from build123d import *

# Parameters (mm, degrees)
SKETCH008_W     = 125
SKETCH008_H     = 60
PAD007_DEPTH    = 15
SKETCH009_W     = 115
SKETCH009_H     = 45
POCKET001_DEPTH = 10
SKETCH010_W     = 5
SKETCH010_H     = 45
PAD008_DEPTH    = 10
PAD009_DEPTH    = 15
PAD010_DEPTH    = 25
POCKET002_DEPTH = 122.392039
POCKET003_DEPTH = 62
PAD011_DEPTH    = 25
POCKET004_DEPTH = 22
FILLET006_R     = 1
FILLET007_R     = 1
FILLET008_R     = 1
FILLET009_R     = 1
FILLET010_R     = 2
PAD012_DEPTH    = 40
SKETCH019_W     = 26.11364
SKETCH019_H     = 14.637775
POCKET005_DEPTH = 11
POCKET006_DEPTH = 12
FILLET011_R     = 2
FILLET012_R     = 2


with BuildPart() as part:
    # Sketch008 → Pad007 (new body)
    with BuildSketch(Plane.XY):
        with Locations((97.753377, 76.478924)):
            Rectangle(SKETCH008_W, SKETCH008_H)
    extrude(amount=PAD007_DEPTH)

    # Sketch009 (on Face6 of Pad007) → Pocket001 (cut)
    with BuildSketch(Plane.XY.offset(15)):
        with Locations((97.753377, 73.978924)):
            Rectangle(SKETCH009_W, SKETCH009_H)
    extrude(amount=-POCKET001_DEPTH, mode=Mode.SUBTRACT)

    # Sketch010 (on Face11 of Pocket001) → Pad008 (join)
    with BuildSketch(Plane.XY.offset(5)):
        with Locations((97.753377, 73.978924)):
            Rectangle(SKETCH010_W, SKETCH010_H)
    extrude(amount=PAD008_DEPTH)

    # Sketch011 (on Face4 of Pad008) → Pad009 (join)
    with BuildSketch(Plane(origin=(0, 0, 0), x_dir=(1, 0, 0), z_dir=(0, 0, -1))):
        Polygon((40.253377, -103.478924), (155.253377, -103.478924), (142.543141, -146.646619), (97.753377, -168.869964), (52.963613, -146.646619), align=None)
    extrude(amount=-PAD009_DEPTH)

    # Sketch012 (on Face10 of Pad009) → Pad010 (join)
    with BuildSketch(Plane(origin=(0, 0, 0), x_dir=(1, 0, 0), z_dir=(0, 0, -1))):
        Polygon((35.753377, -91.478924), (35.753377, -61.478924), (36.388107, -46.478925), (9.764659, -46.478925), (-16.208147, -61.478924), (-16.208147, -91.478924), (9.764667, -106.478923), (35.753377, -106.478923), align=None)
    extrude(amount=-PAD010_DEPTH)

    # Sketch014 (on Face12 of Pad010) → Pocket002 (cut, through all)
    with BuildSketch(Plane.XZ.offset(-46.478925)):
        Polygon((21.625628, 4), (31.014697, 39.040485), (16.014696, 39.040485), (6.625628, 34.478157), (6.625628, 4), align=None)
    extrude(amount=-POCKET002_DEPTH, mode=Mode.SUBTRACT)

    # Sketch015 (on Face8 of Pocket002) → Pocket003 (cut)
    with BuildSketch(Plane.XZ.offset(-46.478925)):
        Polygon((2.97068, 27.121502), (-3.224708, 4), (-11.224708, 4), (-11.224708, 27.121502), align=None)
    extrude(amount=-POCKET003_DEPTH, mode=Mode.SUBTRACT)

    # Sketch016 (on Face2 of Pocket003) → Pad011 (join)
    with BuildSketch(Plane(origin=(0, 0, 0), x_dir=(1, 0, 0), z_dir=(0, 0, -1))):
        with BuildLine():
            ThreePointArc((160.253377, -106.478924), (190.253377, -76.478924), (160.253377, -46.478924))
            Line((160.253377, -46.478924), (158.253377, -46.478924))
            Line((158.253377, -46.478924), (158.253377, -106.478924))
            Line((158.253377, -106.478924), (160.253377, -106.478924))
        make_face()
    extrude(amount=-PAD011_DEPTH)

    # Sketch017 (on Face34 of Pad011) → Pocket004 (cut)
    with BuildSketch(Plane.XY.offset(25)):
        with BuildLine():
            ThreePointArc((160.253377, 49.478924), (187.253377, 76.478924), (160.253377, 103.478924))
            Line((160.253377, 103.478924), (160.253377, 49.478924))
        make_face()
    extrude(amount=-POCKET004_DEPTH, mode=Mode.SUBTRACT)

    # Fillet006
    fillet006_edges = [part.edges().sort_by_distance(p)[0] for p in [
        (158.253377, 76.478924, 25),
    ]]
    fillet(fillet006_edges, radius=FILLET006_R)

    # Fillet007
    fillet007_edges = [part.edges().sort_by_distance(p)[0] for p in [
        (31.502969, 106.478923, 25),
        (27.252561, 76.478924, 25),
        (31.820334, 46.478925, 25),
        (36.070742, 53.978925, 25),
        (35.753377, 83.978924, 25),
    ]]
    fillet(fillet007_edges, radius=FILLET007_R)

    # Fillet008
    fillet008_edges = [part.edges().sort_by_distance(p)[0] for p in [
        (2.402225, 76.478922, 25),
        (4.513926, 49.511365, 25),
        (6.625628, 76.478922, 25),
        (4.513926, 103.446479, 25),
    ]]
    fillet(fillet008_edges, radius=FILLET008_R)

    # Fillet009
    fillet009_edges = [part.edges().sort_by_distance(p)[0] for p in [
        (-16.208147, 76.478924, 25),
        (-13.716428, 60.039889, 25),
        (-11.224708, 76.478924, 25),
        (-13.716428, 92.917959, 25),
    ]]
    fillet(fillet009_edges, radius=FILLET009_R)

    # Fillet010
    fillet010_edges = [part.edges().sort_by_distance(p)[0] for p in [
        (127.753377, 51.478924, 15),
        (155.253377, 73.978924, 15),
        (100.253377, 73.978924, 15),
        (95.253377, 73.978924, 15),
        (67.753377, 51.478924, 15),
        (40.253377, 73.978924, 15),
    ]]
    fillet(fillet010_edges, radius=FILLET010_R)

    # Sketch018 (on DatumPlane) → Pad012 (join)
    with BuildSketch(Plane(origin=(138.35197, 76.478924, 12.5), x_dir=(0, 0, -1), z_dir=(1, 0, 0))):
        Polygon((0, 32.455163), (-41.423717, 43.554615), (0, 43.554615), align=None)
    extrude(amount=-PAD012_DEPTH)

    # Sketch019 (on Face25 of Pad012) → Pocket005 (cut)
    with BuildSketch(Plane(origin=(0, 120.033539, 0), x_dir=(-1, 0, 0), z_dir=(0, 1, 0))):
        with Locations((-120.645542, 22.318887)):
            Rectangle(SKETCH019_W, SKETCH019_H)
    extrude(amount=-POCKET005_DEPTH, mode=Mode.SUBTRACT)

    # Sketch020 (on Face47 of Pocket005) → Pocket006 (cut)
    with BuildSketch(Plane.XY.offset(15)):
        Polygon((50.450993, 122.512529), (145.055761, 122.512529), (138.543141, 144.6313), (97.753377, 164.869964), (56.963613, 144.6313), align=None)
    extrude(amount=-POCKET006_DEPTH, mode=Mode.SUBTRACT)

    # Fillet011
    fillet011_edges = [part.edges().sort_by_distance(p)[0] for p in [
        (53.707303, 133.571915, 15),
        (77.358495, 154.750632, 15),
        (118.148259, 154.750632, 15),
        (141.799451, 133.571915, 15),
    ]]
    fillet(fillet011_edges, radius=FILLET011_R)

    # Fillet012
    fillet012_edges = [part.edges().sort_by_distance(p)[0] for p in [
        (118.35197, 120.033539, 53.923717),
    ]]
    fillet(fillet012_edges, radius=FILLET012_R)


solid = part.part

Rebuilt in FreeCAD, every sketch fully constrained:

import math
import FreeCAD as App
import Part
import Sketcher
Q = App.Units.Quantity


def edges_at(feature, points):
    """Names of the edges that pass closest to the given points."""
    edges = feature.Shape.Edges
    near = lambda p: min(range(len(edges)), key=lambda i: edges[i].distToShape(Part.Vertex(*p))[0])
    return sorted({f"Edge{near(p) + 1}" for p in points})


def add_polygon(sketch, points):
    """Adds a closed chain of lines whose ends are joined by coincident constraints."""
    first, n = sketch.GeometryCount, len(points)
    for a, b in zip(points, points[1:] + points[:1]):
        sketch.addGeometry(Part.LineSegment(App.Vector(*a, 0), App.Vector(*b, 0)), False)
    for i in range(n):
        sketch.addConstraint(Sketcher.Constraint("Coincident", first + i, 2, first + (i + 1) % n, 1))

doc = App.newDocument("Part")
body = doc.addObject("PartDesign::Body", "Body")

# Sketch on XY plane
sketch1 = doc.addObject("Sketcher::SketchObject", "Sketch")
body.addObject(sketch1)
sketch1.AttachmentSupport = (doc.XY_Plane, [""])
sketch1.MapMode = "FlatFace"
add_polygon(sketch1, [(35, 106), (35, 46), (160, 46), (160, 106)])  # lines 0-3
sketch1.addConstraint([
    Sketcher.Constraint("Vertical", 0),
    Sketcher.Constraint("Horizontal", 1),
    Sketcher.Constraint("Vertical", 2),
    Sketcher.Constraint("Horizontal", 3),
    Sketcher.Constraint("DistanceX", 1, 1, 1, 2, 125.0),
    Sketcher.Constraint("DistanceY", 0, 2, 0, 1, 60.0),
    Sketcher.Constraint("DistanceX", -1, 1, 0, 2, 35.253377),
    Sketcher.Constraint("DistanceY", -1, 1, 0, 2, 46.478924),
])
pad1 = doc.addObject("PartDesign::Pad", "Pad")
body.addObject(pad1)
pad1.Profile = sketch1
pad1.Length = 15

# Sketch on XY plane
sketch2 = doc.addObject("Sketcher::SketchObject", "Sketch001")
body.addObject(sketch2)
sketch2.AttachmentSupport = (doc.XY_Plane, [""])
sketch2.MapMode = "FlatFace"
sketch2.AttachmentOffset = App.Placement(App.Vector(0, 0, 15), App.Rotation())
add_polygon(sketch2, [(40, 96), (40, 51), (155, 51), (155, 96)])  # lines 0-3
sketch2.addConstraint([
    Sketcher.Constraint("Vertical", 0),
    Sketcher.Constraint("Horizontal", 1),
    Sketcher.Constraint("Vertical", 2),
    Sketcher.Constraint("Horizontal", 3),
    Sketcher.Constraint("DistanceX", 1, 1, 1, 2, 115.0),
    Sketcher.Constraint("DistanceY", 0, 2, 0, 1, 45.0),
    Sketcher.Constraint("DistanceX", -1, 1, 0, 2, 40.253377),
    Sketcher.Constraint("DistanceY", -1, 1, 0, 2, 51.478924),
])
pocket1 = doc.addObject("PartDesign::Pocket", "Pocket")
body.addObject(pocket1)
pocket1.Profile = sketch2
pocket1.Length = 10

# Sketch on XY plane
sketch3 = doc.addObject("Sketcher::SketchObject", "Sketch002")
body.addObject(sketch3)
sketch3.AttachmentSupport = (doc.XY_Plane, [""])
sketch3.MapMode = "FlatFace"
sketch3.AttachmentOffset = App.Placement(App.Vector(0, 0, 5), App.Rotation())
add_polygon(sketch3, [(95, 96), (95, 51), (100, 51), (100, 96)])  # lines 0-3
sketch3.addConstraint([
    Sketcher.Constraint("Vertical", 0),
    Sketcher.Constraint("Horizontal", 1),
    Sketcher.Constraint("Vertical", 2),
    Sketcher.Constraint("Horizontal", 3),
    Sketcher.Constraint("DistanceX", 1, 1, 1, 2, 5.0),
    Sketcher.Constraint("DistanceY", 0, 2, 0, 1, 45.0),
    Sketcher.Constraint("DistanceX", -1, 1, 0, 2, 95.253377),
    Sketcher.Constraint("DistanceY", -1, 1, 0, 2, 51.478924),
])
pad2 = doc.addObject("PartDesign::Pad", "Pad001")
body.addObject(pad2)
pad2.Profile = sketch3
pad2.Length = 10

# Sketch on XY plane
sketch4 = doc.addObject("Sketcher::SketchObject", "Sketch003")
body.addObject(sketch4)
sketch4.AttachmentSupport = (doc.XY_Plane, [""])
sketch4.MapMode = "FlatFace"
add_polygon(sketch4, [(155, 103), (40, 103), (53, 147), (98, 169), (143, 147)])  # lines 0-4
sketch4.addConstraint([
    Sketcher.Constraint("Horizontal", 0),
    Sketcher.Constraint("Horizontal", 1, 2, 3, 2),
    Sketcher.Constraint("Equal", 2, 3),
    Sketcher.Constraint("Equal", 1, 4),
    Sketcher.Constraint("DistanceX", 0, 2, 0, 1, 115.0),
    Sketcher.Constraint("Distance", 1, 45.0),
    Sketcher.Constraint("Distance", 2, 50.0),
    Sketcher.Constraint("DistanceY", -1, 1, 1, 2, 146.646619),
    Sketcher.Constraint("DistanceX", -1, 1, 3, 2, 142.543141),
    Sketcher.Constraint("DistanceY", 0, 2, 2, 2, 65.39104),
])
pad3 = doc.addObject("PartDesign::Pad", "Pad002")
body.addObject(pad3)
pad3.Profile = sketch4
pad3.Length = 15

# Sketch on XY plane
sketch5 = doc.addObject("Sketcher::SketchObject", "Sketch004")
body.addObject(sketch5)
sketch5.AttachmentSupport = (doc.XY_Plane, [""])
sketch5.MapMode = "FlatFace"
add_polygon(sketch5, [(36, 61), (36, 46), (10, 46), (-16, 61), (-16, 91), (10, 106), (36, 106)])  # lines 0-6
sketch5.addConstraint([
    Sketcher.Constraint("Horizontal", 1),
    Sketcher.Constraint("Vertical", 3),
    Sketcher.Constraint("Horizontal", 5),
    Sketcher.Constraint("Vertical", 6),
    Sketcher.Constraint("Horizontal", 2, 2, 6, 2),
    Sketcher.Constraint("DistanceY", 3, 1, 3, 2, 30.0),
    Sketcher.Constraint("DistanceY", 6, 2, 6, 1, 44.999999),
    Sketcher.Constraint("DistanceY", 1, 2, 2, 2, 14.999999),
    Sketcher.Constraint("DistanceX", 5, 1, 5, 2, 25.98871),
    Sketcher.Constraint("Distance", 2, 29.99311),
    Sketcher.Constraint("DistanceX", 1, 2, 1, 1, 26.623448),
    Sketcher.Constraint("DistanceX", -1, 1, 1, 2, 9.764659),
    Sketcher.Constraint("DistanceX", 4, 2, 0, 2, 26.62344),
    Sketcher.Constraint("DistanceY", -1, 1, 0, 2, 46.478925),
])
pad4 = doc.addObject("PartDesign::Pad", "Pad003")
body.addObject(pad4)
pad4.Profile = sketch5
pad4.Length = 25

# Sketch on XZ plane
sketch6 = doc.addObject("Sketcher::SketchObject", "Sketch005")
body.addObject(sketch6)
sketch6.AttachmentSupport = (doc.XZ_Plane, [""])
sketch6.MapMode = "FlatFace"
sketch6.AttachmentOffset = App.Placement(App.Vector(0, 0, -46.478925), App.Rotation())
add_polygon(sketch6, [(22, 4), (31, 39), (16, 39), (7, 34), (7, 4)])  # lines 0-4
sketch6.addConstraint([
    Sketcher.Constraint("Horizontal", 1),
    Sketcher.Constraint("Vertical", 3),
    Sketcher.Constraint("Horizontal", 4),
    Sketcher.Constraint("Equal", 1, 4),
    Sketcher.Constraint("DistanceX", 1, 2, 1, 1, 15.000001),
    Sketcher.Constraint("Angle", 0, Q("75.000001 deg")),
    Sketcher.Constraint("DistanceY", -1, 1, 3, 2, 4.0),
    Sketcher.Constraint("Distance", 0, 36.276579),
    Sketcher.Constraint("DistanceY", 3, 2, 3, 1, 30.478157),
    Sketcher.Constraint("DistanceX", -1, 1, 0, 2, 31.014697),
])
pocket2 = doc.addObject("PartDesign::Pocket", "Pocket001")
body.addObject(pocket2)
pocket2.Profile = sketch6
pocket2.Type = "ThroughAll"

# Sketch on XZ plane
sketch7 = doc.addObject("Sketcher::SketchObject", "Sketch006")
body.addObject(sketch7)
sketch7.AttachmentSupport = (doc.XZ_Plane, [""])
sketch7.MapMode = "FlatFace"
sketch7.AttachmentOffset = App.Placement(App.Vector(0, 0, -46.478925), App.Rotation())
add_polygon(sketch7, [(-3, 4), (3, 27), (-11, 27), (-11, 4)])  # lines 0-3
sketch7.addConstraint([
    Sketcher.Constraint("Horizontal", 1),
    Sketcher.Constraint("Vertical", 2),
    Sketcher.Constraint("Horizontal", 3),
    Sketcher.Constraint("DistanceX", 3, 1, 3, 2, 8.0),
    Sketcher.Constraint("Angle", 0, Q("75 deg")),
    Sketcher.Constraint("DistanceY", -1, 1, 2, 2, 4.0),
    Sketcher.Constraint("DistanceY", 2, 2, 2, 1, 23.121502),
    Sketcher.Constraint("DistanceX", -1, 1, 0, 2, 2.97068),
])
pocket3 = doc.addObject("PartDesign::Pocket", "Pocket002")
body.addObject(pocket3)
pocket3.Profile = sketch7
pocket3.Length = 62

# Sketch on XY plane
sketch8 = doc.addObject("Sketcher::SketchObject", "Sketch007")
body.addObject(sketch8)
sketch8.AttachmentSupport = (doc.XY_Plane, [""])
sketch8.MapMode = "FlatFace"
sketch8.addGeometry([
    Part.ArcOfCircle(Part.Circle(App.Vector(160.3, 76.5, 0), App.Vector(0, 0, 1), 30), math.radians(-90), math.radians(90)),
    Part.LineSegment(App.Vector(160.3, 46.5, 0), App.Vector(158.3, 46.5, 0)),
    Part.LineSegment(App.Vector(158.3, 46.5, 0), App.Vector(158.3, 106.5, 0)),
    Part.LineSegment(App.Vector(158.3, 106.5, 0), App.Vector(160.3, 106.5, 0)),
], False)
sketch8.addConstraint([
    Sketcher.Constraint("Tangent", 0, 1, 1, 1),
    Sketcher.Constraint("Coincident", 1, 2, 2, 1),
    Sketcher.Constraint("Coincident", 2, 2, 3, 1),
    Sketcher.Constraint("Tangent", 3, 2, 0, 2),
    Sketcher.Constraint("Horizontal", 1),
    Sketcher.Constraint("Vertical", 2),
    Sketcher.Constraint("Horizontal", 3),
    Sketcher.Constraint("Radius", 0, 30.0),
    Sketcher.Constraint("DistanceX", 1, 2, 1, 1, 2.0),
    Sketcher.Constraint("DistanceX", -1, 1, 0, 3, 160.253377),
    Sketcher.Constraint("DistanceY", -1, 1, 0, 3, 76.478924),
])
pad5 = doc.addObject("PartDesign::Pad", "Pad004")
body.addObject(pad5)
pad5.Profile = sketch8
pad5.Length = 25

# Sketch on XY plane
sketch9 = doc.addObject("Sketcher::SketchObject", "Sketch008")
body.addObject(sketch9)
sketch9.AttachmentSupport = (doc.XY_Plane, [""])
sketch9.MapMode = "FlatFace"
sketch9.AttachmentOffset = App.Placement(App.Vector(0, 0, 25), App.Rotation())
sketch9.addGeometry([
    Part.ArcOfCircle(Part.Circle(App.Vector(160, 76, 0), App.Vector(0, 0, 1), 27), math.radians(-90), math.radians(90)),
    Part.LineSegment(App.Vector(160, 103, 0), App.Vector(160, 49, 0)),
], False)
sketch9.addConstraint([
    Sketcher.Constraint("Coincident", 0, 1, 1, 2),
    Sketcher.Constraint("Coincident", 1, 1, 0, 2),
    Sketcher.Constraint("Vertical", 1),
    Sketcher.Constraint("Radius", 0, 27.0),
    Sketcher.Constraint("DistanceX", -1, 1, 0, 3, 160.253377),
    Sketcher.Constraint("DistanceY", -1, 1, 0, 3, 76.478924),
    Sketcher.Constraint("DistanceX", -1, 1, 0, 1, 160.253377),
])
pocket4 = doc.addObject("PartDesign::Pocket", "Pocket003")
body.addObject(pocket4)
pocket4.Profile = sketch9
pocket4.Length = 22
doc.recompute()

fillet = doc.addObject("PartDesign::Fillet", "Fillet")
body.addObject(fillet)
fillet.Base = (pocket4, edges_at(pocket4, [(158.253, 76.479, 25)]))
fillet.Radius = 1
doc.recompute()

fillet2 = doc.addObject("PartDesign::Fillet", "Fillet001")
body.addObject(fillet2)
fillet2.Base = (fillet, edges_at(fillet, [
    (31.503, 106.479, 25),
    (27.253, 76.479, 25),
    (31.82, 46.479, 25),
    (36.071, 53.979, 25),
    (35.753, 83.979, 25),
]))
fillet2.Radius = 1
doc.recompute()

fillet3 = doc.addObject("PartDesign::Fillet", "Fillet002")
body.addObject(fillet3)
fillet3.Base = (fillet2, edges_at(fillet2, [
    (2.402, 76.479, 25),
    (4.514, 49.511, 25),
    (6.626, 76.479, 25),
    (4.514, 103.446, 25),
]))
fillet3.Radius = 1
doc.recompute()

fillet4 = doc.addObject("PartDesign::Fillet", "Fillet003")
body.addObject(fillet4)
fillet4.Base = (fillet3, edges_at(fillet3, [
    (-16.208, 76.479, 25),
    (-13.716, 60.04, 25),
    (-11.225, 76.479, 25),
    (-13.716, 92.918, 25),
]))
fillet4.Radius = 1
doc.recompute()

fillet5 = doc.addObject("PartDesign::Fillet", "Fillet004")
body.addObject(fillet5)
fillet5.Base = (fillet4, edges_at(fillet4, [
    (127.753, 51.479, 15),
    (155.253, 73.979, 15),
    (100.253, 73.979, 15),
    (95.253, 73.979, 15),
    (67.753, 51.479, 15),
    (40.253, 73.979, 15),
]))
fillet5.Radius = 2

# Sketch on YZ plane
sketch10 = doc.addObject("Sketcher::SketchObject", "Sketch009")
body.addObject(sketch10)
sketch10.AttachmentSupport = (doc.YZ_Plane, [""])
sketch10.MapMode = "FlatFace"
sketch10.AttachmentOffset = App.Placement(App.Vector(0, 0, 138.35197), App.Rotation())
add_polygon(sketch10, [(120, 54), (109, 12), (120, 12)])  # lines 0-2
sketch10.addConstraint([
    Sketcher.Constraint("Horizontal", 1),
    Sketcher.Constraint("Vertical", 2),
    Sketcher.Constraint("Angle", 0, Q("-105.000001 deg")),
    Sketcher.Constraint("DistanceY", -1, 1, 0, 2, 12.5),
    Sketcher.Constraint("DistanceX", 1, 1, 1, 2, 11.099452),
    Sketcher.Constraint("DistanceX", -1, 1, 1, 2, 120.033539),
])
pad6 = doc.addObject("PartDesign::Pad", "Pad005")
body.addObject(pad6)
pad6.Profile = sketch10
pad6.Length = 40
pad6.Reversed = True

# Sketch on XZ plane
sketch11 = doc.addObject("Sketcher::SketchObject", "Sketch010")
body.addObject(sketch11)
sketch11.AttachmentSupport = (doc.XZ_Plane, [""])
sketch11.MapMode = "FlatFace"
sketch11.AttachmentOffset = App.Placement(App.Vector(0, 0, -120.033539), App.Rotation())
add_polygon(sketch11, [(134, 30), (134, 15), (108, 15), (108, 30)])  # lines 0-3
sketch11.addConstraint([
    Sketcher.Constraint("Vertical", 0),
    Sketcher.Constraint("Horizontal", 1),
    Sketcher.Constraint("Vertical", 2),
    Sketcher.Constraint("Horizontal", 3),
    Sketcher.Constraint("DistanceY", -1, 1, 0, 2, 14.999999),
    Sketcher.Constraint("DistanceX", 1, 2, 1, 1, 26.11364),
    Sketcher.Constraint("DistanceY", 0, 2, 0, 1, 14.637775),
    Sketcher.Constraint("DistanceX", -1, 1, 0, 2, 133.702362),
])
pocket5 = doc.addObject("PartDesign::Pocket", "Pocket004")
body.addObject(pocket5)
pocket5.Profile = sketch11
pocket5.Length = 11
pocket5.Reversed = True

# Sketch on XY plane
sketch12 = doc.addObject("Sketcher::SketchObject", "Sketch011")
body.addObject(sketch12)
sketch12.AttachmentSupport = (doc.XY_Plane, [""])
sketch12.MapMode = "FlatFace"
sketch12.AttachmentOffset = App.Placement(App.Vector(0, 0, 15), App.Rotation())
add_polygon(sketch12, [(50, 123), (145, 123), (139, 145), (98, 165), (57, 145)])  # lines 0-4
sketch12.addConstraint([
    Sketcher.Constraint("Horizontal", 0),
    Sketcher.Constraint("Horizontal", 1, 2, 3, 2),
    Sketcher.Constraint("Equal", 2, 3),
    Sketcher.Constraint("Equal", 1, 4),
    Sketcher.Constraint("DistanceY", -1, 1, 1, 2, 144.6313),
    Sketcher.Constraint("Distance", 1, 23.057629),
    Sketcher.Constraint("DistanceX", 0, 1, 0, 2, 94.604768),
    Sketcher.Constraint("DistanceX", -1, 1, 0, 2, 145.055761),
    Sketcher.Constraint("DistanceY", -1, 1, 0, 2, 122.512529),
    Sketcher.Constraint("Distance", 2, 45.534694),
])
pocket6 = doc.addObject("PartDesign::Pocket", "Pocket005")
body.addObject(pocket6)
pocket6.Profile = sketch12
pocket6.Length = 12
doc.recompute()

fillet6 = doc.addObject("PartDesign::Fillet", "Fillet005")
body.addObject(fillet6)
fillet6.Base = (pocket6, edges_at(pocket6, [
    (53.707, 133.572, 15),
    (77.358, 154.751, 15),
    (118.148, 154.751, 15),
    (141.799, 133.572, 15),
]))
fillet6.Radius = 2
doc.recompute()

fillet7 = doc.addObject("PartDesign::Fillet", "Fillet006")
body.addObject(fillet7)
fillet7.Base = (fillet6, edges_at(fillet6, [(118.352, 120.034, 53.924)]))
fillet7.Radius = 2

doc.recompute()
